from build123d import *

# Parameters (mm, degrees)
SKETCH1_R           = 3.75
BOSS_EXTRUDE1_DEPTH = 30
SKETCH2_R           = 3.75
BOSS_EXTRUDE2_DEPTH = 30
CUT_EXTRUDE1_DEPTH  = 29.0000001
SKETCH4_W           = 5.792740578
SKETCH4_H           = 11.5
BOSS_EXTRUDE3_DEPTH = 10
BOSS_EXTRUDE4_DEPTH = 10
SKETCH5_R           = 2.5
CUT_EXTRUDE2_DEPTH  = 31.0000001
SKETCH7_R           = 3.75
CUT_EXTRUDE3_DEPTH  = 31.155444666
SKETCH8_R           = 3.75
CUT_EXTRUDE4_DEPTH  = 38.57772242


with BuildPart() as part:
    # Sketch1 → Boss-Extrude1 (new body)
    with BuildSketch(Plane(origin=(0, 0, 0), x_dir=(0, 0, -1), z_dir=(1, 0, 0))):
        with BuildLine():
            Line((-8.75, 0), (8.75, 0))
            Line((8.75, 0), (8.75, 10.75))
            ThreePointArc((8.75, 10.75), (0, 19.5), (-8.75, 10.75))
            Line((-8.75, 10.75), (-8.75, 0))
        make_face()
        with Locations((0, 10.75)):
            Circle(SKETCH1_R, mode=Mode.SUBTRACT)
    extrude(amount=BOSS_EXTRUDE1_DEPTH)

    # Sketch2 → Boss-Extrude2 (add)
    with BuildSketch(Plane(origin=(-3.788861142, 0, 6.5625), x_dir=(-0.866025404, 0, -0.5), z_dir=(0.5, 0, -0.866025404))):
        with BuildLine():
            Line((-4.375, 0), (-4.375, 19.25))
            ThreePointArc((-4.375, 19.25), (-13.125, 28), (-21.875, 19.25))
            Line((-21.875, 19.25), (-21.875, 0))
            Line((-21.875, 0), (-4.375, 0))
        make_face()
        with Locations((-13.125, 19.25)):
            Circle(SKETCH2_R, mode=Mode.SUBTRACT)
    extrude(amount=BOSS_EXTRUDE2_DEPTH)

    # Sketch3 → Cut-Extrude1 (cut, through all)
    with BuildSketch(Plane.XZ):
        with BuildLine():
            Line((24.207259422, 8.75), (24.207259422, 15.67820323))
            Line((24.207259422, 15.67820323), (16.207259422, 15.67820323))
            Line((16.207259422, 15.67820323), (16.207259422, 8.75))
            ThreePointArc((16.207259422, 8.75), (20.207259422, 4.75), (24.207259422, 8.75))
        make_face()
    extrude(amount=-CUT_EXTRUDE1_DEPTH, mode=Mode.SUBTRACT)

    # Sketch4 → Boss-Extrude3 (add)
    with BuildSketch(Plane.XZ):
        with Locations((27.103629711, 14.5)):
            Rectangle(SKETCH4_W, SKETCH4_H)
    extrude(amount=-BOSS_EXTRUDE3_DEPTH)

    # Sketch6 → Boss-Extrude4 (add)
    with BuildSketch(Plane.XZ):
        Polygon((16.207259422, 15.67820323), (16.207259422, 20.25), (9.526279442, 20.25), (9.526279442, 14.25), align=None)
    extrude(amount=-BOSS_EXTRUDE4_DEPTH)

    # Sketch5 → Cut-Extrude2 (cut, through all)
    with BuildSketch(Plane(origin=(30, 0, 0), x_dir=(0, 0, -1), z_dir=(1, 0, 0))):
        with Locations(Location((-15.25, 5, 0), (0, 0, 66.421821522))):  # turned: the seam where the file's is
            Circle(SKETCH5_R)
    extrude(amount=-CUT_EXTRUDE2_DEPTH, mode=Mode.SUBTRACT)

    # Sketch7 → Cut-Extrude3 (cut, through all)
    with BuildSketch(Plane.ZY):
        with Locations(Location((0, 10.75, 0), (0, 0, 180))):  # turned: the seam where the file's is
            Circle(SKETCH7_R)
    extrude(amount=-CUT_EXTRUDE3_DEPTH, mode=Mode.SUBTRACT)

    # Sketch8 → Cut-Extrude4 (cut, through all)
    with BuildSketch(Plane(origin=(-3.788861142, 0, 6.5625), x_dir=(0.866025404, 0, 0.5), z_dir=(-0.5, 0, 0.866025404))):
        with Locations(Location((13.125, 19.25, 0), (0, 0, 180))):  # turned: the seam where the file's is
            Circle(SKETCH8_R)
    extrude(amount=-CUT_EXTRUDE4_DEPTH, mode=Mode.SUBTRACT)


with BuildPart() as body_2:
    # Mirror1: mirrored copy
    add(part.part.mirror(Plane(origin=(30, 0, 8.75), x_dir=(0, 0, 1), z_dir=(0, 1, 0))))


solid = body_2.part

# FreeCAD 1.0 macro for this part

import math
import FreeCAD as App
import Part
import Sketcher
Q = App.Units.Quantity


def add_polygon(sketch, points):
    """Adds a closed chain of lines whose ends are joined by coincident constraints."""
    first, n = sketch.GeometryCount, len(points)
    for a, b in zip(points, points[1:] + points[:1]):
        sketch.addGeometry(Part.LineSegment(App.Vector(*a, 0), App.Vector(*b, 0)), False)
    for i in range(n):
        sketch.addConstraint(Sketcher.Constraint("Coincident", first + i, 2, first + (i + 1) % n, 1))

doc = App.newDocument("Part")
body = doc.addObject("PartDesign::Body", "Body")

# Sketch on YZ plane
sketch1 = doc.addObject("Sketcher::SketchObject", "Sketch")
body.addObject(sketch1)
sketch1.AttachmentSupport = (doc.YZ_Plane, [""])
sketch1.MapMode = "FlatFace"
sketch1.addGeometry([
    Part.LineSegment(App.Vector(0, 8.75, 0), App.Vector(0, -8.75, 0)),  # 0
    Part.LineSegment(App.Vector(0, -8.75, 0), App.Vector(10.75, -8.75, 0)),  # 1
    Part.ArcOfCircle(Part.Circle(App.Vector(10.75, 0, 0), App.Vector(0, 0, 1), 8.75), math.radians(-90), math.radians(90)),  # 2
    Part.LineSegment(App.Vector(10.75, 8.75, 0), App.Vector(0, 8.75, 0)),  # 3
    Part.Circle(App.Vector(10.75, 0, 0), App.Vector(0, 0, 1), 3.75),  # 4
], False)
sketch1.addConstraint([
    Sketcher.Constraint("Coincident", 0, 2, 1, 1),
    Sketcher.Constraint("Tangent", 1, 2, 2, 1),
    Sketcher.Constraint("Tangent", 2, 2, 3, 1),
    Sketcher.Constraint("Coincident", 3, 2, 0, 1),
    Sketcher.Constraint("Vertical", 0),
    Sketcher.Constraint("Horizontal", 1),
    Sketcher.Constraint("Horizontal", 3),
    Sketcher.Constraint("Coincident", 4, 3, 2, 3),
    Sketcher.Constraint("Symmetric", 0, 2, 3, 2, -1, 1),
    Sketcher.Constraint("Diameter", 4, Q("7.5 mm")),
    Sketcher.Constraint("Radius", 2, Q("8.75 mm")),
    Sketcher.Constraint("DistanceX", 1, 1, 1, 2, Q("10.75 mm")),
])
pad1 = doc.addObject("PartDesign::Pad", "Pad")
body.addObject(pad1)
pad1.Profile = sketch1
pad1.Length = 30

# Sketch on an angled plane
sketch2 = doc.addObject("Sketcher::SketchObject", "Sketch001")
body.addObject(sketch2)
sketch2.Placement = App.Placement(App.Vector(-3.788861, 0, 6.5625), App.Rotation(App.Vector(-0.866025404, 0, -0.5), App.Vector(0, 1, 0), App.Vector(0.5, 0, -0.866025404), "ZXY"))
sketch2.addGeometry([
    Part.LineSegment(App.Vector(-4.375, 0, 0), App.Vector(-4.375, 19.25, 0)),  # 0
    Part.ArcOfCircle(Part.Circle(App.Vector(-13.125, 19.25, 0), App.Vector(0, 0, 1), 8.75), math.radians(0), math.radians(180)),  # 1
    Part.LineSegment(App.Vector(-21.875, 19.25, 0), App.Vector(-21.875, 0, 0)),  # 2
    Part.LineSegment(App.Vector(-21.875, 0, 0), App.Vector(-4.375, 0, 0)),  # 3
    Part.Circle(App.Vector(-13.125, 19.25, 0), App.Vector(0, 0, 1), 3.75),  # 4
], False)
sketch2.addConstraint([
    Sketcher.Constraint("Tangent", 0, 2, 1, 1),
    Sketcher.Constraint("Tangent", 1, 2, 2, 1),
    Sketcher.Constraint("Coincident", 2, 2, 3, 1),
    Sketcher.Constraint("Coincident", 3, 2, 0, 1),
    Sketcher.Constraint("Vertical", 0),
    Sketcher.Constraint("Vertical", 2),
    Sketcher.Constraint("Horizontal", 3),
    Sketcher.Constraint("Coincident", 4, 3, 1, 3),
    Sketcher.Constraint("PointOnObject", 2, 2, -1),
    Sketcher.Constraint("Diameter", 4, Q("7.5 mm")),
    Sketcher.Constraint("Radius", 1, Q("8.75 mm")),
    Sketcher.Constraint("DistanceY", 0, 1, 0, 2, Q("19.25 mm")),
    Sketcher.Constraint("DistanceX", 1, 3, -1, 1, Q("13.125 mm")),
])
pad2 = doc.addObject("PartDesign::Pad", "Pad001")
body.addObject(pad2)
pad2.Profile = sketch2
pad2.Length = 30

# Sketch on XZ plane
sketch3 = doc.addObject("Sketcher::SketchObject", "Sketch002")
body.addObject(sketch3)
sketch3.AttachmentSupport = (doc.XZ_Plane, [""])
sketch3.MapMode = "FlatFace"
sketch3.addGeometry([
    Part.LineSegment(App.Vector(24.207259, 8.75, 0), App.Vector(24.207259, 15.678203, 0)),
    Part.LineSegment(App.Vector(24.207259, 15.678203, 0), App.Vector(16.207259, 15.678203, 0)),
    Part.LineSegment(App.Vector(16.207259, 15.678203, 0), App.Vector(16.207259, 8.75, 0)),
    Part.ArcOfCircle(Part.Circle(App.Vector(20.207259, 8.75, 0), App.Vector(0, 0, 1), 4), math.radians(180), math.radians(360)),
], False)
sketch3.addConstraint([
    Sketcher.Constraint("Coincident", 0, 2, 1, 1),
    Sketcher.Constraint("Coincident", 1, 2, 2, 1),
    Sketcher.Constraint("Tangent", 2, 2, 3, 1),
    Sketcher.Constraint("Tangent", 3, 2, 0, 1),
    Sketcher.Constraint("Vertical", 0),
    Sketcher.Constraint("Horizontal", 1),
    Sketcher.Constraint("Vertical", 2),
    Sketcher.Constraint("Radius", 3, Q("4 mm")),
    Sketcher.Constraint("DistanceY", -1, 1, 3, 3, Q("8.75 mm")),
    Sketcher.Constraint("DistanceY", 0, 1, 0, 2, Q("6.928203 mm")),
    Sketcher.Constraint("DistanceX", -1, 1, 3, 3, Q("20.207259 mm")),
])
pocket1 = doc.addObject("PartDesign::Pocket", "Pocket")
body.addObject(pocket1)
pocket1.Profile = sketch3
pocket1.Type = "ThroughAll"

# Sketch on XZ plane
sketch4 = doc.addObject("Sketcher::SketchObject", "Sketch003")
body.addObject(sketch4)
sketch4.AttachmentSupport = (doc.XZ_Plane, [""])
sketch4.MapMode = "FlatFace"
add_polygon(sketch4, [(24.207259, 20.25), (24.207259, 8.75), (30, 8.75), (30, 20.25)])  # lines 0-3
sketch4.addConstraint([
    Sketcher.Constraint("Vertical", 0),
    Sketcher.Constraint("Horizontal", 1),
    Sketcher.Constraint("Vertical", 2),
    Sketcher.Constraint("Horizontal", 3),
    Sketcher.Constraint("DistanceY", 0, 2, 0, 1, Q("11.5 mm")),
    Sketcher.Constraint("DistanceX", -1, 1, 1, 2, Q("30 mm")),
    Sketcher.Constraint("DistanceY", -1, 1, 0, 2, Q("8.75 mm")),
    Sketcher.Constraint("DistanceX", 1, 1, 1, 2, Q("5.792741 mm")),
])
pad3 = doc.addObject("PartDesign::Pad", "Pad002")
body.addObject(pad3)
pad3.Profile = sketch4
pad3.Length = 10
pad3.Reversed = True

# Sketch on XZ plane
sketch5 = doc.addObject("Sketcher::SketchObject", "Sketch004")
body.addObject(sketch5)
sketch5.AttachmentSupport = (doc.XZ_Plane, [""])
sketch5.MapMode = "FlatFace"
add_polygon(sketch5, [(16.207259, 15.678203), (16.207259, 20.25), (9.526279, 20.25), (9.526279, 14.25)])  # lines 0-3
sketch5.addConstraint([
    Sketcher.Constraint("Vertical", 0),
    Sketcher.Constraint("Horizontal", 1),
    Sketcher.Constraint("Vertical", 2),
    Sketcher.Constraint("DistanceY", 2, 2, 2, 1, Q("6 mm")),
    Sketcher.Constraint("DistanceY", -1, 1, 0, 2, Q("20.25 mm")),
    Sketcher.Constraint("DistanceX", 1, 2, 1, 1, Q("6.68098 mm")),
    Sketcher.Constraint("Distance", 3, Q("6.831929 mm")),
    Sketcher.Constraint("DistanceX", -1, 1, 0, 2, Q("16.207259 mm")),
])
pad4 = doc.addObject("PartDesign::Pad", "Pad003")
body.addObject(pad4)
pad4.Profile = sketch5
pad4.Length = 10
pad4.Reversed = True

# Sketch on YZ plane
sketch6 = doc.addObject("Sketcher::SketchObject", "Sketch005")
body.addObject(sketch6)
sketch6.AttachmentSupport = (doc.YZ_Plane, [""])
sketch6.MapMode = "FlatFace"
sketch6.AttachmentOffset = App.Placement(App.Vector(0, 0, 30), App.Rotation())
sketch6.addGeometry(Part.Circle(App.Vector(5, 15.25, 0), App.Vector(0, 0, 1), 2.5), False)
sketch6.addConstraint([
    Sketcher.Constraint("Diameter", 0, Q("5 mm")),
    Sketcher.Constraint("DistanceX", -1, 1, 0, 3, Q("5 mm")),
    Sketcher.Constraint("DistanceY", -1, 1, 0, 3, Q("15.25 mm")),
])
pocket2 = doc.addObject("PartDesign::Pocket", "Pocket001")
body.addObject(pocket2)
pocket2.Profile = sketch6
pocket2.Type = "ThroughAll"

# Sketch on YZ plane
sketch7 = doc.addObject("Sketcher::SketchObject", "Sketch006")
body.addObject(sketch7)
sketch7.AttachmentSupport = (doc.YZ_Plane, [""])
sketch7.MapMode = "FlatFace"
sketch7.addGeometry(Part.Circle(App.Vector(10.75, 0, 0), App.Vector(0, 0, 1), 3.75), False)
sketch7.addConstraint([
    Sketcher.Constraint("PointOnObject", 0, 3, -1),
    Sketcher.Constraint("Diameter", 0, Q("7.5 mm")),
    Sketcher.Constraint("DistanceX", -1, 1, 0, 3, Q("10.75 mm")),
])
pocket3 = doc.addObject("PartDesign::Pocket", "Pocket002")
body.addObject(pocket3)
pocket3.Profile = sketch7
pocket3.Type = "ThroughAll"
pocket3.Reversed = True

# Sketch on an angled plane
sketch8 = doc.addObject("Sketcher::SketchObject", "Sketch007")
body.addObject(sketch8)
sketch8.Placement = App.Placement(App.Vector(-3.788861, 0, 6.5625), App.Rotation(App.Vector(0.866025404, 0, 0.5), App.Vector(0, 1, 0), App.Vector(-0.5, 0, 0.866025404), "ZXY"))
sketch8.addGeometry(Part.Circle(App.Vector(13.125, 19.25, 0), App.Vector(0, 0, 1), 3.75), False)
sketch8.addConstraint([
    Sketcher.Constraint("Diameter", 0, Q("7.5 mm")),
    Sketcher.Constraint("DistanceY", -1, 1, 0, 3, Q("19.25 mm")),
    Sketcher.Constraint("DistanceX", -1, 1, 0, 3, Q("13.125 mm")),
])
pocket4 = doc.addObject("PartDesign::Pocket", "Pocket003")
body.addObject(pocket4)
pocket4.Profile = sketch8
pocket4.Type = "ThroughAll"
body2 = doc.addObject("PartDesign::Body", "Body001")
doc.recompute()

mirroring = doc.addObject("Part::Mirroring", "Mirroring")
mirroring.Source = body
mirroring.Base = App.Vector(30, 0, 8.75)
mirroring.Normal = App.Vector(0, 1, 0)
body2.BaseFeature = mirroring
doc.recompute()
body.Visibility = False
mirroring.Visibility = False

doc.recompute()
